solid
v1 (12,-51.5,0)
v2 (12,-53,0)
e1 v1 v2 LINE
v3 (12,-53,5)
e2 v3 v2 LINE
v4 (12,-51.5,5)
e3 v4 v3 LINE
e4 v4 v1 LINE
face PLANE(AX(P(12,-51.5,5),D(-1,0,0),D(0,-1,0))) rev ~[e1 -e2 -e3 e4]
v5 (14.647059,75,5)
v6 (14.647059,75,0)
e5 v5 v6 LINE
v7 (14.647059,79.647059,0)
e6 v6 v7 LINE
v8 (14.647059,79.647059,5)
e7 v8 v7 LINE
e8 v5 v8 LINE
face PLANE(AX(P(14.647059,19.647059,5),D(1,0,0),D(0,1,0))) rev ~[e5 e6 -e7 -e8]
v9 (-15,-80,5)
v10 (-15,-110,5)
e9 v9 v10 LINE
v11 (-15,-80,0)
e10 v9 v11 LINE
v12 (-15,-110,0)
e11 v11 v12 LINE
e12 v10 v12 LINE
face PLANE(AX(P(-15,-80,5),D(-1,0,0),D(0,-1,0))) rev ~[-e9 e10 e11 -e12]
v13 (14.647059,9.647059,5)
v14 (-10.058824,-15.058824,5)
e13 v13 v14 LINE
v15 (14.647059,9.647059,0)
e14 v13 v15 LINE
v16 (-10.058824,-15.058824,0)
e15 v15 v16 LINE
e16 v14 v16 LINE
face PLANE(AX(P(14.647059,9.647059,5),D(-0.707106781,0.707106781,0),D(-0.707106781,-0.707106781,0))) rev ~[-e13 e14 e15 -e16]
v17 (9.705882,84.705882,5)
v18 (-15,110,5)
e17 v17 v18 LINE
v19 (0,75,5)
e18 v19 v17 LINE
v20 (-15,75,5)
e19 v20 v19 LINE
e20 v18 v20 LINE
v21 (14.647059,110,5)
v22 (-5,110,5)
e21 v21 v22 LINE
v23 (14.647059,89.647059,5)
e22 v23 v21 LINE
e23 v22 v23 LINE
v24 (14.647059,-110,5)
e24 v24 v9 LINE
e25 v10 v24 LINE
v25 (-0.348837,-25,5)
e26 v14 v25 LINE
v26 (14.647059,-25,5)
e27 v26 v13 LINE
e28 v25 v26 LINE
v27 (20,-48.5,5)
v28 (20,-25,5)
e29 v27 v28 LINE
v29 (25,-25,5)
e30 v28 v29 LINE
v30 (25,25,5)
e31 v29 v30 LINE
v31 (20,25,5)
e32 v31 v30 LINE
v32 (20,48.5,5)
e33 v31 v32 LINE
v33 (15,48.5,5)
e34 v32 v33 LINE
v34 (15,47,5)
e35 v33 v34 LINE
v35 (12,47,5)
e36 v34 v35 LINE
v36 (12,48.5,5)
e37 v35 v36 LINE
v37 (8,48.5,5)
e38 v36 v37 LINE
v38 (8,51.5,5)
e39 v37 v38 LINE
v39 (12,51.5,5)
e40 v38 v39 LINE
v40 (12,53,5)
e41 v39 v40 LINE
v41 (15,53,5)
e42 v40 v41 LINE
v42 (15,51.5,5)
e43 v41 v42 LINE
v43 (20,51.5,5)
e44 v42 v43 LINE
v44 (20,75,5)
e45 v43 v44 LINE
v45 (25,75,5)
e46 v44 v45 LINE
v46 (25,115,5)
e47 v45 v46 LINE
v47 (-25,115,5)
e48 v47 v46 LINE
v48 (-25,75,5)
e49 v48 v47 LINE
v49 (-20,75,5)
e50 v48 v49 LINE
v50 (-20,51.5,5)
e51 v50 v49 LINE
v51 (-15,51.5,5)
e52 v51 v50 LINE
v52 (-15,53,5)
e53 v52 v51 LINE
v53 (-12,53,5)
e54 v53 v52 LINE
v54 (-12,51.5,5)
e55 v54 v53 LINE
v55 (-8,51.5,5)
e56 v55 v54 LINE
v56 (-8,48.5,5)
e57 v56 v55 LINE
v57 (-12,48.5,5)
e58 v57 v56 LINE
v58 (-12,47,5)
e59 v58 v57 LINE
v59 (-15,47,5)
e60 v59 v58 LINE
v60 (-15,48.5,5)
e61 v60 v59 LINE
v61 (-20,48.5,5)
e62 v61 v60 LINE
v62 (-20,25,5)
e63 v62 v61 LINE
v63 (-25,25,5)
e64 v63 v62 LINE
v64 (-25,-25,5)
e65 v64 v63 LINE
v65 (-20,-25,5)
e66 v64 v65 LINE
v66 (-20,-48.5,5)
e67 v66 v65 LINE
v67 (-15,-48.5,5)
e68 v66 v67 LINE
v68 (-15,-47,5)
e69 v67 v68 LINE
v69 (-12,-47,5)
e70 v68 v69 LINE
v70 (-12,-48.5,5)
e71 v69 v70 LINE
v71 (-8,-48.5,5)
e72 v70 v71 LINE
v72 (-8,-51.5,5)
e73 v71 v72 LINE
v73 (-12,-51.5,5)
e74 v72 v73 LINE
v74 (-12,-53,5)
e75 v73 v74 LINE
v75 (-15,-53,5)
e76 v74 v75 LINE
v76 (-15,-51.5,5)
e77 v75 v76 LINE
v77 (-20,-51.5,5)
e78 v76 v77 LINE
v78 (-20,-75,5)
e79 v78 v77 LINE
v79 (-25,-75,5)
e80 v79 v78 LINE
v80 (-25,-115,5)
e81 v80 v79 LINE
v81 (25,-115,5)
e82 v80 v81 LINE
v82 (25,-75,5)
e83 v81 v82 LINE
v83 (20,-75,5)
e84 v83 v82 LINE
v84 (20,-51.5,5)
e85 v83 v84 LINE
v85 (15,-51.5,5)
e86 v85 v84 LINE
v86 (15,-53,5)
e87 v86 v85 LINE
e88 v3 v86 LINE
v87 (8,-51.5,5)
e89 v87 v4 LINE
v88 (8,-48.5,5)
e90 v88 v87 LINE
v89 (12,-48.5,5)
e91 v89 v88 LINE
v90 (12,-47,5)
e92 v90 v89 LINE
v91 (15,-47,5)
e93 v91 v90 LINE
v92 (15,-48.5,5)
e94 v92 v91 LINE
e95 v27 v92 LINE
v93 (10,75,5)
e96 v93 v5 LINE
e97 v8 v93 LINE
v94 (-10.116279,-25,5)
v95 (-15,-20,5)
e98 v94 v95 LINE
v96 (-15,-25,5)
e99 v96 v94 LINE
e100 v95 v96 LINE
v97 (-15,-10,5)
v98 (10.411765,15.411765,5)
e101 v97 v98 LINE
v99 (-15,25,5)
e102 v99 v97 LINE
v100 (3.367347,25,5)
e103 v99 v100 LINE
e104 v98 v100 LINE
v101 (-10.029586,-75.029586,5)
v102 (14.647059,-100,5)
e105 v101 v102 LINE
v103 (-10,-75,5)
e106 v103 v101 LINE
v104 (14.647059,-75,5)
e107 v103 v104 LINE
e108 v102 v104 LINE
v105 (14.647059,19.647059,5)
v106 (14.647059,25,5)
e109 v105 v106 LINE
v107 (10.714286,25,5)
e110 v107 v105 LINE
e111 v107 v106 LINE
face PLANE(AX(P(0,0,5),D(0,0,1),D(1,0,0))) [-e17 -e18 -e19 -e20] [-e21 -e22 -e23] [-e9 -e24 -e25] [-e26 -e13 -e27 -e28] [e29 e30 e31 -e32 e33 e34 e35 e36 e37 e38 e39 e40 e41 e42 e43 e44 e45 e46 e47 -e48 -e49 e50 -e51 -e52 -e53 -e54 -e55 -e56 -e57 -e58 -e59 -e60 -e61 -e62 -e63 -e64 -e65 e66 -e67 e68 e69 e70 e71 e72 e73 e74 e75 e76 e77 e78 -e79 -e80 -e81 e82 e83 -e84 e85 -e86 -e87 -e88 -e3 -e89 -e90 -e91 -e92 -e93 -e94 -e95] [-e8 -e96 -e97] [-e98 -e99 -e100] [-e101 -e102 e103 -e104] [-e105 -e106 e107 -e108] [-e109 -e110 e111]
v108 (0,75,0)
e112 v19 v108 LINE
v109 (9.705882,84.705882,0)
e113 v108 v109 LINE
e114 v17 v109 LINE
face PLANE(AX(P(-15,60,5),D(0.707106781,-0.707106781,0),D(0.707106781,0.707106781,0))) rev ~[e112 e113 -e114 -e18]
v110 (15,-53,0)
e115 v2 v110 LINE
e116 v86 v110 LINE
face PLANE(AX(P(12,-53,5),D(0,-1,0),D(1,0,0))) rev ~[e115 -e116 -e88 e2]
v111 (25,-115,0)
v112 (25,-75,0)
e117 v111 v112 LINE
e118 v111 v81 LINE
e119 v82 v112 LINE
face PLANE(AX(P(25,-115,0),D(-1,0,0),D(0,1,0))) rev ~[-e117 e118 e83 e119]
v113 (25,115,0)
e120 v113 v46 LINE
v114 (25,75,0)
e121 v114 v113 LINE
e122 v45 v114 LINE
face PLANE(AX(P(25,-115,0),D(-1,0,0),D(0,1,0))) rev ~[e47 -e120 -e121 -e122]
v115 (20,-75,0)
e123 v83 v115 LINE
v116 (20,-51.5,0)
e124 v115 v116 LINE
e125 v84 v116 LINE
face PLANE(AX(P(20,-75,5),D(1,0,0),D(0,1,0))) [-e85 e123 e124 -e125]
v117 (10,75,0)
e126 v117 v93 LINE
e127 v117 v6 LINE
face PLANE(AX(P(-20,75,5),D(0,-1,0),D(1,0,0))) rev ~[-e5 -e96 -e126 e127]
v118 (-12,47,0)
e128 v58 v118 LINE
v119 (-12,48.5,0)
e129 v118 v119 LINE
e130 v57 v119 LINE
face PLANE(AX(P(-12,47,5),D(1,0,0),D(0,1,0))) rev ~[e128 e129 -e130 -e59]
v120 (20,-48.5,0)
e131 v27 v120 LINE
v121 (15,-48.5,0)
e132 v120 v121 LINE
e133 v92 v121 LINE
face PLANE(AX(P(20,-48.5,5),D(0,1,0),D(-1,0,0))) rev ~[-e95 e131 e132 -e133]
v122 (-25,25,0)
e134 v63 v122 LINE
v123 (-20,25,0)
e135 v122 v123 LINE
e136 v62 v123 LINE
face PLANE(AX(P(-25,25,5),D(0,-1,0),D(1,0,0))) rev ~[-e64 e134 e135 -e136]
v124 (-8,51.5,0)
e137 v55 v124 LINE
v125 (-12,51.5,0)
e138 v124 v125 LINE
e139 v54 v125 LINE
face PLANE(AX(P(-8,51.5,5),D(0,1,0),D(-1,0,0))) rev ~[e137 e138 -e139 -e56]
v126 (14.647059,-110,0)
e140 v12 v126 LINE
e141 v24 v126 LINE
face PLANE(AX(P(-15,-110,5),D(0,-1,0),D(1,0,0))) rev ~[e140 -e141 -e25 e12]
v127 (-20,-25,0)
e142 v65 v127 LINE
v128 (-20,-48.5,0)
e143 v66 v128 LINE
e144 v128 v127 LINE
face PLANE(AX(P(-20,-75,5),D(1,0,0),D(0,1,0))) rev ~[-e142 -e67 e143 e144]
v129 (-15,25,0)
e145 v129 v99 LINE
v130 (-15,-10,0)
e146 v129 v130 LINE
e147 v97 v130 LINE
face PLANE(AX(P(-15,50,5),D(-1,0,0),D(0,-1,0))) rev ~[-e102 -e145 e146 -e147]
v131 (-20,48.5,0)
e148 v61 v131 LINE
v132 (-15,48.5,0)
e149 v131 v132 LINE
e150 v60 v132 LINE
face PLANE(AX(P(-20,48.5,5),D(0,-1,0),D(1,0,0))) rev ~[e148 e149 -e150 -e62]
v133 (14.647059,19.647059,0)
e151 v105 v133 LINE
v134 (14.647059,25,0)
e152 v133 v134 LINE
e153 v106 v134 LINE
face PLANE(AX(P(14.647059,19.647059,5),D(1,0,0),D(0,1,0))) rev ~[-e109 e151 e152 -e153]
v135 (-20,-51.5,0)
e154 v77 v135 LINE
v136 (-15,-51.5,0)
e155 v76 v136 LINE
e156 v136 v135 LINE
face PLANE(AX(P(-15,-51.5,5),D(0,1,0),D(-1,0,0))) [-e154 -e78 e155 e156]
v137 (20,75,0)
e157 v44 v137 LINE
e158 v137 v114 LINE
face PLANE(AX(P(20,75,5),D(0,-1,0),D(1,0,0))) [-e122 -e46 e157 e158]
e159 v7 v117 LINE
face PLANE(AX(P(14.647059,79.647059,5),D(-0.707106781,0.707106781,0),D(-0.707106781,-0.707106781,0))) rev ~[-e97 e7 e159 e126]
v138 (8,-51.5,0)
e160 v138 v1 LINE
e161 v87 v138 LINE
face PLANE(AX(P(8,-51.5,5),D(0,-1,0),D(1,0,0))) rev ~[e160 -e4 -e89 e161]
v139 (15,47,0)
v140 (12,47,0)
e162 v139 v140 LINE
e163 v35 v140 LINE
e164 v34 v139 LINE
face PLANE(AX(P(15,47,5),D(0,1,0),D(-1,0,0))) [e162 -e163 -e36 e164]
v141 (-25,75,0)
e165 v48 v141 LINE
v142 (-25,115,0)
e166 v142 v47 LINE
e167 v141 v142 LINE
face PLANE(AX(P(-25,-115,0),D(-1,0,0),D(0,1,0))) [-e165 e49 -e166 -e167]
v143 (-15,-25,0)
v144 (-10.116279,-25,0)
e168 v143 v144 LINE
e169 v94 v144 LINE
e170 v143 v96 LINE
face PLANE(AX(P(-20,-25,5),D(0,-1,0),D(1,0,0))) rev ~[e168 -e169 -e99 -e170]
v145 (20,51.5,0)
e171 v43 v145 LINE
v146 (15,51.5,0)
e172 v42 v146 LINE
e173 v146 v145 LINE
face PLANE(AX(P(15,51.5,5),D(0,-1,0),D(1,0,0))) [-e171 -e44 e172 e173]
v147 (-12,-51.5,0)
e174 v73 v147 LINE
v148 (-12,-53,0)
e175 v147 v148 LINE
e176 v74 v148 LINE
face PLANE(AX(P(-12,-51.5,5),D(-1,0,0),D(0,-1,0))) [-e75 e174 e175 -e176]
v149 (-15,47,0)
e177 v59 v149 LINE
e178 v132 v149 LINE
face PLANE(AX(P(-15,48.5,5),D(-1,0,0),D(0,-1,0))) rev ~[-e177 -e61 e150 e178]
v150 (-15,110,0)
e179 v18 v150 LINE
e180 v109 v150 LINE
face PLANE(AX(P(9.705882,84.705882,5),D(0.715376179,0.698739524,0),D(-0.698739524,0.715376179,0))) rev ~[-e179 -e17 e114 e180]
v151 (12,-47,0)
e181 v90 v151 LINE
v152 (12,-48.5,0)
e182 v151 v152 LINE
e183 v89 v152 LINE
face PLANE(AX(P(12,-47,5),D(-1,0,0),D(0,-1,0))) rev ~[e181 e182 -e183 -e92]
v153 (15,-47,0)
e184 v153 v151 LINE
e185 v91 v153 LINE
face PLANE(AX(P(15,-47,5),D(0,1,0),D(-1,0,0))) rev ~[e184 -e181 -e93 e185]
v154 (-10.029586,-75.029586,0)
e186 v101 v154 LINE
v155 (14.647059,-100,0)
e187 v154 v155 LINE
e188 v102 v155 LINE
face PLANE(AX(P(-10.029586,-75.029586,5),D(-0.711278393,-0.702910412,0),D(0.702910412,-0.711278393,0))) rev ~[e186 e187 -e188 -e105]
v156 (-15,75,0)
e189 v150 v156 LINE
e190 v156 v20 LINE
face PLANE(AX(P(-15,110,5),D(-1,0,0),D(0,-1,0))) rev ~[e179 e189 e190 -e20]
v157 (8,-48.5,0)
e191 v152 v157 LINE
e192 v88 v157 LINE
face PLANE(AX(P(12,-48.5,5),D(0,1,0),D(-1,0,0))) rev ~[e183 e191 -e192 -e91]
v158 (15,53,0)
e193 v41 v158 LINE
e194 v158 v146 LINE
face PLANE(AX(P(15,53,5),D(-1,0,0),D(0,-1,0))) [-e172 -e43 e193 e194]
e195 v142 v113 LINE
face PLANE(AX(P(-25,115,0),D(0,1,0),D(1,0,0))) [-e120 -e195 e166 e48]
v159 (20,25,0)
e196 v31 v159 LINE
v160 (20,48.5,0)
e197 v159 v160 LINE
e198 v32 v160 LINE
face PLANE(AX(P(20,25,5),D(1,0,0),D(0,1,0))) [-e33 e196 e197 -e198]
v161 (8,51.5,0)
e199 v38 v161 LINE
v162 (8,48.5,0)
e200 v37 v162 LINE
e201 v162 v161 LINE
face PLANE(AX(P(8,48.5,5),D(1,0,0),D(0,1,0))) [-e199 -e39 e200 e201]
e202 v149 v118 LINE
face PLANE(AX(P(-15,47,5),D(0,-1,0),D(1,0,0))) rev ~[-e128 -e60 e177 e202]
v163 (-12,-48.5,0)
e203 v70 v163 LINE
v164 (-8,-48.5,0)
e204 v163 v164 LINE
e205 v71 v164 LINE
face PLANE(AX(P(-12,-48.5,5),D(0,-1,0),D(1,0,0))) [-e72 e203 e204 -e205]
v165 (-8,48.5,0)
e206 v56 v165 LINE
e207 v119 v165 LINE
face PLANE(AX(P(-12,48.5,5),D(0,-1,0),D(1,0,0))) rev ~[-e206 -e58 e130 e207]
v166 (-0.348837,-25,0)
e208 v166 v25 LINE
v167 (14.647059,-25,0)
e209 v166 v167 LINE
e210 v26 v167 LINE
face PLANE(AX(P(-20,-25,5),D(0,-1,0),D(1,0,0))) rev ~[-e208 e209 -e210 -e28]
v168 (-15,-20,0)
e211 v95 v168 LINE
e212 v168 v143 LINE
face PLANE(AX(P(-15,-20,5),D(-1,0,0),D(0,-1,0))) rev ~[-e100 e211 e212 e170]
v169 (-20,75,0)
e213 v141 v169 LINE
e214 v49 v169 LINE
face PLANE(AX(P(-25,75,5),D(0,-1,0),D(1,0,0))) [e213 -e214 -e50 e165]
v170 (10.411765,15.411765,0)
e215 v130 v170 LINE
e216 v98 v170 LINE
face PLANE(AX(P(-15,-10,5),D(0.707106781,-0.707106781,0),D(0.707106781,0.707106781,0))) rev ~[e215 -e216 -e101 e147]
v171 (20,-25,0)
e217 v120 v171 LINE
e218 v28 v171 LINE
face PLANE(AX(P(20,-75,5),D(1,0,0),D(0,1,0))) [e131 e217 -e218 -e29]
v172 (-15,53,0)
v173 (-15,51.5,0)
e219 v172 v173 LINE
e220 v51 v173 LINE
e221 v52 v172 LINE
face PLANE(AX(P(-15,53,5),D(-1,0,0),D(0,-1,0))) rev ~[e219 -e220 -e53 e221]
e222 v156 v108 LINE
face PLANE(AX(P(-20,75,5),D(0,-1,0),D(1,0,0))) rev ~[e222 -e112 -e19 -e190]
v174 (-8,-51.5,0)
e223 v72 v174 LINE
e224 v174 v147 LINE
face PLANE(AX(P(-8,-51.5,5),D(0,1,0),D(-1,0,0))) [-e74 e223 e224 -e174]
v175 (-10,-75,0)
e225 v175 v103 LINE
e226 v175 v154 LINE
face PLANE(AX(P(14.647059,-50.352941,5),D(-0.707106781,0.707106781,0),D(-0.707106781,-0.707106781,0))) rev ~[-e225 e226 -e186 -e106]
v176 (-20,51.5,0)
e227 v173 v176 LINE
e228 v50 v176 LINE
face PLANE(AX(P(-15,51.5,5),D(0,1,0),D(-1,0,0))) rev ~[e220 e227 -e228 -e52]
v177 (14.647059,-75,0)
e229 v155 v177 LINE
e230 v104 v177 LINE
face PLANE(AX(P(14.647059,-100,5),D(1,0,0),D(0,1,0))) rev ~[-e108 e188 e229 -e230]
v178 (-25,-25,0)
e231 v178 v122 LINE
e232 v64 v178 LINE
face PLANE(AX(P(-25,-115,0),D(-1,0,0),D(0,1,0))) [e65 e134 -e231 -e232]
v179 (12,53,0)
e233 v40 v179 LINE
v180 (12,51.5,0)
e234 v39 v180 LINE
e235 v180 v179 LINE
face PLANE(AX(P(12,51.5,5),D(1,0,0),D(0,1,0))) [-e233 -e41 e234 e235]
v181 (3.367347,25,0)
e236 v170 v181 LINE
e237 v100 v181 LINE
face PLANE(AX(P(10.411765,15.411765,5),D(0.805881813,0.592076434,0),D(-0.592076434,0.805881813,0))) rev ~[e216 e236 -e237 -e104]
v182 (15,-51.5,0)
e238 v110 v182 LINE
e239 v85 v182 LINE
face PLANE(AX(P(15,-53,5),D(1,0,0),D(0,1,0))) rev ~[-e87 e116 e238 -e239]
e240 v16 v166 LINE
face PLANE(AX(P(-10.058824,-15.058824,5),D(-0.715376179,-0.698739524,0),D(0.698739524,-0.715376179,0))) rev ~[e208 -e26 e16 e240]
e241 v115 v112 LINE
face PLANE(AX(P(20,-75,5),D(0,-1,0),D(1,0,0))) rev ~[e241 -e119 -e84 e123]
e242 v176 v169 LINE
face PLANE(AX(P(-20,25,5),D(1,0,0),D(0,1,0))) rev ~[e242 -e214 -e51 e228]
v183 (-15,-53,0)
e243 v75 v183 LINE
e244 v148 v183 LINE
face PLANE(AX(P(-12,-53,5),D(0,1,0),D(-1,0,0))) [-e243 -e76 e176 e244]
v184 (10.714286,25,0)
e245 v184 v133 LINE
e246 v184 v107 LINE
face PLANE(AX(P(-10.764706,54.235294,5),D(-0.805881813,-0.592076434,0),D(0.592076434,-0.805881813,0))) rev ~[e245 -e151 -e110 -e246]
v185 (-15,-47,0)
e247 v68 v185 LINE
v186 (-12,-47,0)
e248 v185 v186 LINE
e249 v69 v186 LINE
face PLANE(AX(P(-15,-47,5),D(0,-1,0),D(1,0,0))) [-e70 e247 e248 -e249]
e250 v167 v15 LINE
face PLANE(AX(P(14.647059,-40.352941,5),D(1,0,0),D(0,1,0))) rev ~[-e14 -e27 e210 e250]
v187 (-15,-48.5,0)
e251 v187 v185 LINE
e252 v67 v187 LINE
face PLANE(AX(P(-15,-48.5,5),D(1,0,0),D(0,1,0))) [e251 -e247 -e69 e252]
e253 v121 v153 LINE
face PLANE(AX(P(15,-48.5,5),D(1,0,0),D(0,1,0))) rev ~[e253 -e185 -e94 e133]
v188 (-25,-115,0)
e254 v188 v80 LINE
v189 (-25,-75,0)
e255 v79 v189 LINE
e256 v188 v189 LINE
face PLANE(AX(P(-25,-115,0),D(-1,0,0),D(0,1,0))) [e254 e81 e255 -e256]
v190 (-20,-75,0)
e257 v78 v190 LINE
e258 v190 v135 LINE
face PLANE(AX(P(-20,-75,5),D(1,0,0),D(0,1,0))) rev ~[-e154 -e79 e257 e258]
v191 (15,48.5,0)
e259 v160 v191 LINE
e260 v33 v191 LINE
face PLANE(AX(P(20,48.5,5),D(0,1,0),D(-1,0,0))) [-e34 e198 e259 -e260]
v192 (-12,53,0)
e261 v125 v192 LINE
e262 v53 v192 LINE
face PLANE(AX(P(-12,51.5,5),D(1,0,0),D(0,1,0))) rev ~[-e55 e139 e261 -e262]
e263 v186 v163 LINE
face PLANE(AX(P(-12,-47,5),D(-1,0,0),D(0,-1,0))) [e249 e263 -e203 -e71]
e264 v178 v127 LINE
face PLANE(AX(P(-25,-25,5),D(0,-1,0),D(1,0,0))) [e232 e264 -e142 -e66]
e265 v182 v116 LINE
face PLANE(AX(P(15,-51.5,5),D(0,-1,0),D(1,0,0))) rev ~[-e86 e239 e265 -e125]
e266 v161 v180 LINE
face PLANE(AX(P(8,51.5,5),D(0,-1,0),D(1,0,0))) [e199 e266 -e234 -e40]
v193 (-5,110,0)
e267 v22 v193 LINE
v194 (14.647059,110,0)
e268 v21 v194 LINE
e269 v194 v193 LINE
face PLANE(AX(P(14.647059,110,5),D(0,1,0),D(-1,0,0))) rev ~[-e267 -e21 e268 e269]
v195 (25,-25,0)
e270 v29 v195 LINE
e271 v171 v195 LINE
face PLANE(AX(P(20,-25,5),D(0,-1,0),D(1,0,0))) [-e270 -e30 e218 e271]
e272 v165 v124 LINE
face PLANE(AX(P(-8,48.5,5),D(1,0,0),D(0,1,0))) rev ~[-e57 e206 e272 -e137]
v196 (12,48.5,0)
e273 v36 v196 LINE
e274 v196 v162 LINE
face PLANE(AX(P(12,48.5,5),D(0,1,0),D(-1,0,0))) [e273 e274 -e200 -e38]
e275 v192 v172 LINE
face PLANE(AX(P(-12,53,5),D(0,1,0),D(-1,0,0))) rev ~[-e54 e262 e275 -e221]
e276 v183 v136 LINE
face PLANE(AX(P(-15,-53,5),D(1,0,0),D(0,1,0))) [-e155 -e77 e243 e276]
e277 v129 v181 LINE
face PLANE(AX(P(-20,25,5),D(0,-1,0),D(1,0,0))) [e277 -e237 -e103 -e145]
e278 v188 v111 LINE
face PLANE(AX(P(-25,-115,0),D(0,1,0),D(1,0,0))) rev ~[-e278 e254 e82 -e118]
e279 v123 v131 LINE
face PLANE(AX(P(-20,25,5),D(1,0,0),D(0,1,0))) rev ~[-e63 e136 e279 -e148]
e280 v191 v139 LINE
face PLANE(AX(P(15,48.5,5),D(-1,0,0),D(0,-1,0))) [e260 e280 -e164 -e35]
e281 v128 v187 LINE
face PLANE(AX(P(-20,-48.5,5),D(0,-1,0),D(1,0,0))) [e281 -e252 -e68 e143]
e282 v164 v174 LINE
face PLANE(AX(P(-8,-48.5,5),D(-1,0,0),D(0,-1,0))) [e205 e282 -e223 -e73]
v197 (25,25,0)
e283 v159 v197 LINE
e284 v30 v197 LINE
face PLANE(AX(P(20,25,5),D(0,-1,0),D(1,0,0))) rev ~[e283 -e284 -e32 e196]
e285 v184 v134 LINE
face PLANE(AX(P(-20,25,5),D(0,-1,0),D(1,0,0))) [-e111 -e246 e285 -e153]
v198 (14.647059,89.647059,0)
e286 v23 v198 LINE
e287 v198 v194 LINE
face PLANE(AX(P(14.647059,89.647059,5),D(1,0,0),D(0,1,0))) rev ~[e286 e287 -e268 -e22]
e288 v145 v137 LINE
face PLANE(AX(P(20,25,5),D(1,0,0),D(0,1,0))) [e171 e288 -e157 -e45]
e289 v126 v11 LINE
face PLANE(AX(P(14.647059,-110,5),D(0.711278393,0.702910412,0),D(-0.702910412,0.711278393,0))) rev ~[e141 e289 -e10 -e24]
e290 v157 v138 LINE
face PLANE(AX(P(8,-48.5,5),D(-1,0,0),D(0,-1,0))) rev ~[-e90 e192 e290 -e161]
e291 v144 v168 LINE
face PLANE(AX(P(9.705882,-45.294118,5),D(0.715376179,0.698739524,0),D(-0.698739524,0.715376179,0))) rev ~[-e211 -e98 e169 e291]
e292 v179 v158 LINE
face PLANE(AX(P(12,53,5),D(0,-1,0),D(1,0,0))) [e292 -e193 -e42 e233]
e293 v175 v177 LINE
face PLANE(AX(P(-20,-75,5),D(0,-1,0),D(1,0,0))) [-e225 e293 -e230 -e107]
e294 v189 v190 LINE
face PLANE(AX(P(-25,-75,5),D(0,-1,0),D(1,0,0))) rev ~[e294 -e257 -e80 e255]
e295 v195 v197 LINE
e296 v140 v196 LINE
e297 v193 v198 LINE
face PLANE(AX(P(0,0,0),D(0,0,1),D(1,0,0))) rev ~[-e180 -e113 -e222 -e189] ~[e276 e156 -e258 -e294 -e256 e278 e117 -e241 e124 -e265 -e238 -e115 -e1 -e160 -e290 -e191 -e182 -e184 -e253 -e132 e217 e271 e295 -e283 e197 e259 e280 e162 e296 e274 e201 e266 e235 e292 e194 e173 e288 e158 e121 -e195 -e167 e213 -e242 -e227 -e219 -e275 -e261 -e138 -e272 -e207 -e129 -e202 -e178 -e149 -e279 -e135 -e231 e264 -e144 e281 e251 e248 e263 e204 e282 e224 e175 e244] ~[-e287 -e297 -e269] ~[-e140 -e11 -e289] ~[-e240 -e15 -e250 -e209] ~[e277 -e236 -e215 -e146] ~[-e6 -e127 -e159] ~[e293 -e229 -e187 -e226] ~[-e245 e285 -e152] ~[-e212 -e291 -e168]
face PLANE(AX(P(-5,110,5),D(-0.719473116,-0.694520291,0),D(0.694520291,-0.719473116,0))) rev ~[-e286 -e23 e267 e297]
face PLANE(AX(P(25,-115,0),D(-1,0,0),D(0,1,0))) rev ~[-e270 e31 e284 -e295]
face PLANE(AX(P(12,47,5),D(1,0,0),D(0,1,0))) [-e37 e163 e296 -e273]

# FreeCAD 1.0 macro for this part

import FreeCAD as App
import Part
import Sketcher
Q = App.Units.Quantity

doc = App.newDocument("Part")
body = doc.addObject("PartDesign::Body", "Body")

# Sketch on XY plane
sketch1 = doc.addObject("Sketcher::SketchObject", "Sketch")
body.addObject(sketch1)
sketch1.AttachmentSupport = (doc.XY_Plane, [""])
sketch1.MapMode = "FlatFace"
sketch1.addGeometry(Part.LineSegment(App.Vector(-25, 115, 0), App.Vector(-25, -115, 0)), False)
sketch1.addGeometry(Part.LineSegment(App.Vector(-25, -115, 0), App.Vector(25, -115, 0)), False)
sketch1.addGeometry(Part.LineSegment(App.Vector(25, -115, 0), App.Vector(25, 115, 0)), False)
sketch1.addGeometry(Part.LineSegment(App.Vector(25, 115, 0), App.Vector(-25, 115, 0)), False)
sketch1.addConstraint(Sketcher.Constraint("Coincident", 0, 2, 1, 1))
sketch1.addConstraint(Sketcher.Constraint("Coincident", 1, 2, 2, 1))
sketch1.addConstraint(Sketcher.Constraint("Coincident", 2, 2, 3, 1))
sketch1.addConstraint(Sketcher.Constraint("Coincident", 3, 2, 0, 1))
sketch1.addConstraint(Sketcher.Constraint("Vertical", 0))
sketch1.addConstraint(Sketcher.Constraint("Horizontal", 1))
sketch1.addConstraint(Sketcher.Constraint("Vertical", 2))
sketch1.addConstraint(Sketcher.Constraint("Horizontal", 3))
sketch1.addConstraint(Sketcher.Constraint("Symmetric", 0, 2, 2, 2, -1, 1))
sketch1.addConstraint(Sketcher.Constraint("DistanceX", 1, 1, 1, 2, Q("50 mm")))
sketch1.addConstraint(Sketcher.Constraint("DistanceY", 0, 2, 0, 1, Q("230 mm")))
pad1 = doc.addObject("PartDesign::Pad", "Pad")
body.addObject(pad1)
pad1.Profile = sketch1
pad1.Length = 5

# Sketch on XY plane
sketch2 = doc.addObject("Sketcher::SketchObject", "Sketch001")
body.addObject(sketch2)
sketch2.AttachmentSupport = (doc.XY_Plane, [""])
sketch2.MapMode = "FlatFace"
sketch2.AttachmentOffset = App.Placement(App.Vector(0, 0, 5), App.Rotation())
sketch2.addGeometry(Part.LineSegment(App.Vector(-25, 75, 0), App.Vector(-25, 25, 0)), False)
sketch2.addGeometry(Part.LineSegment(App.Vector(-25, 25, 0), App.Vector(-20, 25, 0)), False)
sketch2.addGeometry(Part.LineSegment(App.Vector(-20, 25, 0), App.Vector(-20, 75, 0)), False)
sketch2.addGeometry(Part.LineSegment(App.Vector(-20, 75, 0), App.Vector(-25, 75, 0)), False)
sketch2.addGeometry(Part.LineSegment(App.Vector(-25, -25, 0), App.Vector(-25, -75, 0)), False)
sketch2.addGeometry(Part.LineSegment(App.Vector(-25, -75, 0), App.Vector(-20, -75, 0)), False)
sketch2.addGeometry(Part.LineSegment(App.Vector(-20, -75, 0), App.Vector(-20, -25, 0)), False)
sketch2.addGeometry(Part.LineSegment(App.Vector(-20, -25, 0), App.Vector(-25, -25, 0)), False)
sketch2.addGeometry(Part.LineSegment(App.Vector(20, -25, 0), App.Vector(20, -75, 0)), False)
sketch2.addGeometry(Part.LineSegment(App.Vector(20, -75, 0), App.Vector(25, -75, 0)), False)
sketch2.addGeometry(Part.LineSegment(App.Vector(25, -75, 0), App.Vector(25, -25, 0)), False)
sketch2.addGeometry(Part.LineSegment(App.Vector(25, -25, 0), App.Vector(20, -25, 0)), False)
sketch2.addGeometry(Part.LineSegment(App.Vector(20, 75, 0), App.Vector(20, 25, 0)), False)
sketch2.addGeometry(Part.LineSegment(App.Vector(20, 25, 0), App.Vector(25, 25, 0)), False)
sketch2.addGeometry(Part.LineSegment(App.Vector(25, 25, 0), App.Vector(25, 75, 0)), False)
sketch2.addGeometry(Part.LineSegment(App.Vector(25, 75, 0), App.Vector(20, 75, 0)), False)
sketch2.addConstraint(Sketcher.Constraint("Coincident", 0, 2, 1, 1))
sketch2.addConstraint(Sketcher.Constraint("Coincident", 1, 2, 2, 1))
sketch2.addConstraint(Sketcher.Constraint("Coincident", 2, 2, 3, 1))
sketch2.addConstraint(Sketcher.Constraint("Coincident", 3, 2, 0, 1))
sketch2.addConstraint(Sketcher.Constraint("Coincident", 4, 2, 5, 1))
sketch2.addConstraint(Sketcher.Constraint("Coincident", 5, 2, 6, 1))
sketch2.addConstraint(Sketcher.Constraint("Coincident", 6, 2, 7, 1))
sketch2.addConstraint(Sketcher.Constraint("Coincident", 7, 2, 4, 1))
sketch2.addConstraint(Sketcher.Constraint("Coincident", 8, 2, 9, 1))
sketch2.addConstraint(Sketcher.Constraint("Coincident", 9, 2, 10, 1))
sketch2.addConstraint(Sketcher.Constraint("Coincident", 10, 2, 11, 1))
sketch2.addConstraint(Sketcher.Constraint("Coincident", 11, 2, 8, 1))
sketch2.addConstraint(Sketcher.Constraint("Coincident", 12, 2, 13, 1))
sketch2.addConstraint(Sketcher.Constraint("Coincident", 13, 2, 14, 1))
sketch2.addConstraint(Sketcher.Constraint("Coincident", 14, 2, 15, 1))
sketch2.addConstraint(Sketcher.Constraint("Coincident", 15, 2, 12, 1))
sketch2.addConstraint(Sketcher.Constraint("Vertical", 0))
sketch2.addConstraint(Sketcher.Constraint("Horizontal", 1))
sketch2.addConstraint(Sketcher.Constraint("Vertical", 2))
sketch2.addConstraint(Sketcher.Constraint("Horizontal", 3))
sketch2.addConstraint(Sketcher.Constraint("Vertical", 4))
sketch2.addConstraint(Sketcher.Constraint("Horizontal", 5))
sketch2.addConstraint(Sketcher.Constraint("Vertical", 6))
sketch2.addConstraint(Sketcher.Constraint("Horizontal", 7))
sketch2.addConstraint(Sketcher.Constraint("Vertical", 8))
sketch2.addConstraint(Sketcher.Constraint("Horizontal", 9))
sketch2.addConstraint(Sketcher.Constraint("Vertical", 10))
sketch2.addConstraint(Sketcher.Constraint("Horizontal", 11))
sketch2.addConstraint(Sketcher.Constraint("Vertical", 12))
sketch2.addConstraint(Sketcher.Constraint("Horizontal", 13))
sketch2.addConstraint(Sketcher.Constraint("Vertical", 14))
sketch2.addConstraint(Sketcher.Constraint("Horizontal", 15))
sketch2.addConstraint(Sketcher.Constraint("Symmetric", 2, 2, 8, 2, -1, 1))
sketch2.addConstraint(Sketcher.Constraint("Symmetric", 0, 2, 10, 2, -1, 1))
sketch2.addConstraint(Sketcher.Constraint("Symmetric", 6, 2, 12, 2, -1, 1))
sketch2.addConstraint(Sketcher.Constraint("Symmetric", 4, 2, 14, 2, -1, 1))
sketch2.addConstraint(Sketcher.Constraint("Symmetric", 5, 2, 8, 2, -2))
sketch2.addConstraint(Sketcher.Constraint("Symmetric", 7, 2, 10, 2, -2))
sketch2.addConstraint(Sketcher.Constraint("DistanceX", 1, 1, 1, 2, Q("5 mm")))
sketch2.addConstraint(Sketcher.Constraint("DistanceY", 0, 2, 0, 1, Q("50 mm")))
sketch2.addConstraint(Sketcher.Constraint("DistanceX", 0, 2, -1, 1, Q("25 mm")))
sketch2.addConstraint(Sketcher.Constraint("DistanceY", -1, 1, 0, 2, Q("25 mm")))
pocket1 = doc.addObject("PartDesign::Pocket", "Pocket")
body.addObject(pocket1)
pocket1.Profile = sketch2
pocket1.Length = 7

# Sketch on YZ plane
sketch3 = doc.addObject("Sketcher::SketchObject", "Sketch002")
body.addObject(sketch3)
sketch3.AttachmentSupport = (doc.YZ_Plane, [""])
sketch3.MapMode = "FlatFace"
sketch3.AttachmentOffset = App.Placement(App.Vector(0, 0, -20), App.Rotation())
sketch3.addGeometry(Part.Circle(App.Vector(50, 2.5, 0), App.Vector(0, 0, 1), 1.5), False)
sketch3.addGeometry(Part.Circle(App.Vector(-50, 2.5, 0), App.Vector(0, 0, 1), 1.5), False)
sketch3.addConstraint(Sketcher.Constraint("Equal", 0, 1))
sketch3.addConstraint(Sketcher.Constraint("Symmetric", 0, 3, 1, 3, -2))
sketch3.addConstraint(Sketcher.Constraint("Diameter", 0, Q("3 mm")))
sketch3.addConstraint(Sketcher.Constraint("DistanceX", -1, 1, 0, 3, Q("50 mm")))
sketch3.addConstraint(Sketcher.Constraint("DistanceY", -1, 1, 0, 3, Q("2.5 mm")))
pocket2 = doc.addObject("PartDesign::Pocket", "Pocket001")
body.addObject(pocket2)
pocket2.Profile = sketch3
pocket2.Length = 7
pocket2.Reversed = True

# Sketch on YZ plane
sketch4 = doc.addObject("Sketcher::SketchObject", "Sketch003")
body.addObject(sketch4)
sketch4.AttachmentSupport = (doc.YZ_Plane, [""])
sketch4.MapMode = "FlatFace"
sketch4.AttachmentOffset = App.Placement(App.Vector(0, 0, 13), App.Rotation())
sketch4.addGeometry(Part.Circle(App.Vector(-50, 2.5, 0), App.Vector(0, 0, 1), 1.5), False)
sketch4.addGeometry(Part.Circle(App.Vector(50, 2.5, 0), App.Vector(0, 0, 1), 1.5), False)
sketch4.addConstraint(Sketcher.Constraint("Equal", 0, 1))
sketch4.addConstraint(Sketcher.Constraint("Symmetric", 0, 3, 1, 3, -2))
sketch4.addConstraint(Sketcher.Constraint("Diameter", 0, Q("3 mm")))
sketch4.addConstraint(Sketcher.Constraint("DistanceX", 0, 3, -1, 1, Q("50 mm")))
sketch4.addConstraint(Sketcher.Constraint("DistanceY", -1, 1, 0, 3, Q("2.5 mm")))
pocket3 = doc.addObject("PartDesign::Pocket", "Pocket002")
body.addObject(pocket3)
pocket3.Profile = sketch4
pocket3.Length = 7
pocket3.Reversed = True

# Sketch on XY plane
sketch5 = doc.addObject("Sketcher::SketchObject", "Sketch004")
body.addObject(sketch5)
sketch5.AttachmentSupport = (doc.XY_Plane, [""])
sketch5.MapMode = "FlatFace"
sketch5.AttachmentOffset = App.Placement(App.Vector(0, 0, 5), App.Rotation())
sketch5.addGeometry(Part.LineSegment(App.Vector(10, 85, 0), App.Vector(-15, 110, 0)), False)
sketch5.addGeometry(Part.LineSegment(App.Vector(-15, 110, 0), App.Vector(-15, 60, 0)), False)
sketch5.addGeometry(Part.LineSegment(App.Vector(-15, 60, 0), App.Vector(10, 85, 0)), False)
sketch5.addGeometry(Part.LineSegment(App.Vector(15, 20, 0), App.Vector(15, 80, 0)), False)
sketch5.addGeometry(Part.LineSegment(App.Vector(15, 80, 0), App.Vector(-11, 54, 0)), False)
sketch5.addGeometry(Part.LineSegment(App.Vector(-11, 54, 0), App.Vector(15, 20, 0)), False)
sketch5.addGeometry(Part.LineSegment(App.Vector(10, 15, 0), App.Vector(-15, 50, 0)), False)
sketch5.addGeometry(Part.LineSegment(App.Vector(-15, 50, 0), App.Vector(-15, -10, 0)), False)
sketch5.addGeometry(Part.LineSegment(App.Vector(-15, -10, 0), App.Vector(10, 15, 0)), False)
sketch5.addGeometry(Part.LineSegment(App.Vector(15, 110, 0), App.Vector(-5, 110, 0)), False)
sketch5.addGeometry(Part.LineSegment(App.Vector(-5, 110, 0), App.Vector(15, 90, 0)), False)
sketch5.addGeometry(Part.LineSegment(App.Vector(15, 90, 0), App.Vector(15, 110, 0)), False)
sketch5.addGeometry(Part.LineSegment(App.Vector(15, -40, 0), App.Vector(15, 10, 0)), False)
sketch5.addGeometry(Part.LineSegment(App.Vector(15, 10, 0), App.Vector(-10, -15, 0)), False)
sketch5.addGeometry(Part.LineSegment(App.Vector(-10, -15, 0), App.Vector(15, -40, 0)), False)
sketch5.addGeometry(Part.LineSegment(App.Vector(10, -45, 0), App.Vector(-15, -20, 0)), False)
sketch5.addGeometry(Part.LineSegment(App.Vector(-15, -20, 0), App.Vector(-15, -70, 0)), False)
sketch5.addGeometry(Part.LineSegment(App.Vector(-15, -70, 0), App.Vector(10, -45, 0)), False)
sketch5.addGeometry(Part.LineSegment(App.Vector(15, -100, 0), App.Vector(15, -50, 0)), False)
sketch5.addGeometry(Part.LineSegment(App.Vector(15, -50, 0), App.Vector(-10, -75, 0)), False)
sketch5.addGeometry(Part.LineSegment(App.Vector(-10, -75, 0), App.Vector(15, -100, 0)), False)
sketch5.addGeometry(Part.LineSegment(App.Vector(15, -110, 0), App.Vector(-15, -80, 0)), False)
sketch5.addGeometry(Part.LineSegment(App.Vector(-15, -80, 0), App.Vector(-15, -110, 0)), False)
sketch5.addGeometry(Part.LineSegment(App.Vector(-15, -110, 0), App.Vector(15, -110, 0)), False)
sketch5.addConstraint(Sketcher.Constraint("Coincident", 0, 2, 1, 1))
sketch5.addConstraint(Sketcher.Constraint("Coincident", 1, 2, 2, 1))
sketch5.addConstraint(Sketcher.Constraint("Coincident", 2, 2, 0, 1))
sketch5.addConstraint(Sketcher.Constraint("Coincident", 3, 2, 4, 1))
sketch5.addConstraint(Sketcher.Constraint("Coincident", 4, 2, 5, 1))
sketch5.addConstraint(Sketcher.Constraint("Coincident", 5, 2, 3, 1))
sketch5.addConstraint(Sketcher.Constraint("Coincident", 6, 2, 7, 1))
sketch5.addConstraint(Sketcher.Constraint("Coincident", 7, 2, 8, 1))
sketch5.addConstraint(Sketcher.Constraint("Coincident", 8, 2, 6, 1))
sketch5.addConstraint(Sketcher.Constraint("Coincident", 9, 2, 10, 1))
sketch5.addConstraint(Sketcher.Constraint("Coincident", 10, 2, 11, 1))
sketch5.addConstraint(Sketcher.Constraint("Coincident", 11, 2, 9, 1))
sketch5.addConstraint(Sketcher.Constraint("Coincident", 12, 2, 13, 1))
sketch5.addConstraint(Sketcher.Constraint("Coincident", 13, 2, 14, 1))
sketch5.addConstraint(Sketcher.Constraint("Coincident", 14, 2, 12, 1))
sketch5.addConstraint(Sketcher.Constraint("Coincident", 15, 2, 16, 1))
sketch5.addConstraint(Sketcher.Constraint("Coincident", 16, 2, 17, 1))
sketch5.addConstraint(Sketcher.Constraint("Coincident", 17, 2, 15, 1))
sketch5.addConstraint(Sketcher.Constraint("Coincident", 18, 2, 19, 1))
sketch5.addConstraint(Sketcher.Constraint("Coincident", 19, 2, 20, 1))
sketch5.addConstraint(Sketcher.Constraint("Coincident", 20, 2, 18, 1))
sketch5.addConstraint(Sketcher.Constraint("Coincident", 21, 2, 22, 1))
sketch5.addConstraint(Sketcher.Constraint("Coincident", 22, 2, 23, 1))
sketch5.addConstraint(Sketcher.Constraint("Coincident", 23, 2, 21, 1))
sketch5.addConstraint(Sketcher.Constraint("Vertical", 1))
sketch5.addConstraint(Sketcher.Constraint("Vertical", 3))
sketch5.addConstraint(Sketcher.Constraint("Vertical", 7))
sketch5.addConstraint(Sketcher.Constraint("Horizontal", 9))
sketch5.addConstraint(Sketcher.Constraint("Vertical", 11))
sketch5.addConstraint(Sketcher.Constraint("Vertical", 12))
sketch5.addConstraint(Sketcher.Constraint("Vertical", 16))
sketch5.addConstraint(Sketcher.Constraint("Vertical", 18))
sketch5.addConstraint(Sketcher.Constraint("Vertical", 22))
sketch5.addConstraint(Sketcher.Constraint("Horizontal", 23))
sketch5.addConstraint(Sketcher.Constraint("Symmetric", 0, 2, 22, 2, -1))
sketch5.addConstraint(Sketcher.Constraint("Symmetric", 11, 2, 23, 2, -1))
sketch5.addConstraint(Sketcher.Constraint("Parallel", 2, 4))
sketch5.addConstraint(Sketcher.Constraint("Parallel", 5, 6))
sketch5.addConstraint(Sketcher.Constraint("Parallel", 4, 8))
sketch5.addConstraint(Sketcher.Constraint("Parallel", 8, 13))
sketch5.addConstraint(Sketcher.Constraint("Parallel", 0, 14))
sketch5.addConstraint(Sketcher.Constraint("Parallel", 14, 15))
sketch5.addConstraint(Sketcher.Constraint("Parallel", 13, 17))
sketch5.addConstraint(Sketcher.Constraint("Parallel", 17, 19))
sketch5.addConstraint(Sketcher.Constraint("Parallel", 20, 21))
sketch5.addConstraint(Sketcher.Constraint("Vertical", 1, 2, 6, 2))
sketch5.addConstraint(Sketcher.Constraint("Vertical", 5, 2, 10, 2))
sketch5.addConstraint(Sketcher.Constraint("Vertical", 11, 2, 12, 2))
sketch5.addConstraint(Sketcher.Constraint("Vertical", 7, 2, 15, 2))
sketch5.addConstraint(Sketcher.Constraint("Vertical", 2, 2, 17, 2))
sketch5.addConstraint(Sketcher.Constraint("Vertical", 14, 2, 18, 2))
sketch5.addConstraint(Sketcher.Constraint("Equal", 3, 7))
sketch5.addConstraint(Sketcher.Constraint("Equal", 1, 12))
sketch5.addConstraint(Sketcher.Constraint("DistanceY", 1, 2, 1, 1, Q("50 mm")))
sketch5.addConstraint(Sketcher.Constraint("DistanceY", 3, 1, 3, 2, Q("60 mm")))
sketch5.addConstraint(Sketcher.Constraint("DistanceY", 22, 2, 22, 1, Q("30 mm")))
sketch5.addConstraint(Sketcher.Constraint("Angle", 2, Q("45 deg")))
sketch5.addConstraint(Sketcher.Constraint("DistanceX", 0, 2, -1, 1, Q("15 mm")))
sketch5.addConstraint(Sketcher.Constraint("DistanceY", -1, 1, 0, 2, Q("110 mm")))
sketch5.addConstraint(Sketcher.Constraint("DistanceY", -1, 1, 6, 2, Q("50 mm")))
sketch5.addConstraint(Sketcher.Constraint("DistanceX", 9, 2, -1, 1, Q("5 mm")))
sketch5.addConstraint(Sketcher.Constraint("DistanceY", 15, 2, -1, 1, Q("20 mm")))
sketch5.addConstraint(Sketcher.Constraint("DistanceY", 20, 2, -1, 1, Q("100 mm")))
sketch5.addConstraint(Sketcher.Constraint("DistanceY", 3, 2, 10, 2, Q("10 mm")))
sketch5.addConstraint(Sketcher.Constraint("DistanceY", 12, 2, 5, 2, Q("10 mm")))
sketch5.addConstraint(Sketcher.Constraint("DistanceY", 18, 2, 14, 2, Q("10 mm")))
sketch5.addConstraint(Sketcher.Constraint("DistanceX", 9, 2, 9, 1, Q("19.647059 mm")))
sketch5.addConstraint(Sketcher.Constraint("DistanceY", 11, 1, 11, 2, Q("20.352941 mm")))
sketch5.addConstraint(Sketcher.Constraint("DistanceX", 4, 2, 2, 2, Q("20.470588 mm")))
sketch5.addConstraint(Sketcher.Constraint("DistanceX", 4, 2, 8, 2, Q("21.176471 mm")))
pocket4 = doc.addObject("PartDesign::Pocket", "Pocket003")
body.addObject(pocket4)
pocket4.Profile = sketch5
pocket4.Length = 7

# Sketch on XY plane
sketch6 = doc.addObject("Sketcher::SketchObject", "Sketch005")
body.addObject(sketch6)
sketch6.AttachmentSupport = (doc.XY_Plane, [""])
sketch6.MapMode = "FlatFace"
sketch6.AttachmentOffset = App.Placement(App.Vector(0, 0, 5), App.Rotation())
sketch6.addGeometry(Part.LineSegment(App.Vector(-20, -25, 0), App.Vector(-20, -75, 0)), False)
sketch6.addGeometry(Part.LineSegment(App.Vector(-20, -75, 0), App.Vector(20, -75, 0)), False)
sketch6.addGeometry(Part.LineSegment(App.Vector(20, -75, 0), App.Vector(20, -25, 0)), False)
sketch6.addGeometry(Part.LineSegment(App.Vector(20, -25, 0), App.Vector(-20, -25, 0)), False)
sketch6.addGeometry(Part.LineSegment(App.Vector(-20, 75, 0), App.Vector(-20, 25, 0)), False)
sketch6.addGeometry(Part.LineSegment(App.Vector(-20, 25, 0), App.Vector(20, 25, 0)), False)
sketch6.addGeometry(Part.LineSegment(App.Vector(20, 25, 0), App.Vector(20, 75, 0)), False)
sketch6.addGeometry(Part.LineSegment(App.Vector(20, 75, 0), App.Vector(-20, 75, 0)), False)
sketch6.addConstraint(Sketcher.Constraint("Coincident", 0, 2, 1, 1))
sketch6.addConstraint(Sketcher.Constraint("Coincident", 1, 2, 2, 1))
sketch6.addConstraint(Sketcher.Constraint("Coincident", 2, 2, 3, 1))
sketch6.addConstraint(Sketcher.Constraint("Coincident", 3, 2, 0, 1))
sketch6.addConstraint(Sketcher.Constraint("Coincident", 4, 2, 5, 1))
sketch6.addConstraint(Sketcher.Constraint("Coincident", 5, 2, 6, 1))
sketch6.addConstraint(Sketcher.Constraint("Coincident", 6, 2, 7, 1))
sketch6.addConstraint(Sketcher.Constraint("Coincident", 7, 2, 4, 1))
sketch6.addConstraint(Sketcher.Constraint("Vertical", 0))
sketch6.addConstraint(Sketcher.Constraint("Horizontal", 1))
sketch6.addConstraint(Sketcher.Constraint("Vertical", 2))
sketch6.addConstraint(Sketcher.Constraint("Horizontal", 3))
sketch6.addConstraint(Sketcher.Constraint("Vertical", 4))
sketch6.addConstraint(Sketcher.Constraint("Horizontal", 5))
sketch6.addConstraint(Sketcher.Constraint("Vertical", 6))
sketch6.addConstraint(Sketcher.Constraint("Horizontal", 7))
sketch6.addConstraint(Sketcher.Constraint("Symmetric", 2, 2, 4, 2, -1, 1))
sketch6.addConstraint(Sketcher.Constraint("Symmetric", 0, 2, 6, 2, -1, 1))
sketch6.addConstraint(Sketcher.Constraint("Vertical", 3, 2, 4, 2))
sketch6.addConstraint(Sketcher.Constraint("DistanceX", 1, 1, 1, 2, Q("40 mm")))
sketch6.addConstraint(Sketcher.Constraint("DistanceY", 0, 2, 0, 1, Q("50 mm")))
sketch6.addConstraint(Sketcher.Constraint("DistanceY", 0, 2, -1, 1, Q("75 mm")))
pad2 = doc.addObject("PartDesign::Pad", "Pad001")
body.addObject(pad2)
pad2.Profile = sketch6
pad2.Length = 5
pad2.Reversed = True

# Sketch on XY plane
sketch7 = doc.addObject("Sketcher::SketchObject", "Sketch006")
body.addObject(sketch7)
sketch7.AttachmentSupport = (doc.XY_Plane, [""])
sketch7.MapMode = "FlatFace"
sketch7.AttachmentOffset = App.Placement(App.Vector(0, 0, 5), App.Rotation())
sketch7.addGeometry(Part.LineSegment(App.Vector(-15, -47, 0), App.Vector(-15, -48.5, 0)), False)
sketch7.addGeometry(Part.LineSegment(App.Vector(-15, -48.5, 0), App.Vector(-20, -48.5, 0)), False)
sketch7.addGeometry(Part.LineSegment(App.Vector(-20, -48.5, 0), App.Vector(-20, -51.5, 0)), False)
sketch7.addGeometry(Part.LineSegment(App.Vector(-20, -51.5, 0), App.Vector(-15, -51.5, 0)), False)
sketch7.addGeometry(Part.LineSegment(App.Vector(-15, -51.5, 0), App.Vector(-15, -53, 0)), False)
sketch7.addGeometry(Part.LineSegment(App.Vector(-15, -53, 0), App.Vector(-12, -53, 0)), False)
sketch7.addGeometry(Part.LineSegment(App.Vector(-12, -53, 0), App.Vector(-12, -51.5, 0)), False)
sketch7.addGeometry(Part.LineSegment(App.Vector(-12, -51.5, 0), App.Vector(-8, -51.5, 0)), False)
sketch7.addGeometry(Part.LineSegment(App.Vector(-8, -51.5, 0), App.Vector(-8, -48.5, 0)), False)
sketch7.addGeometry(Part.LineSegment(App.Vector(-8, -48.5, 0), App.Vector(-12, -48.5, 0)), False)
sketch7.addGeometry(Part.LineSegment(App.Vector(-12, -48.5, 0), App.Vector(-12, -47, 0)), False)
sketch7.addGeometry(Part.LineSegment(App.Vector(-12, -47, 0), App.Vector(-15, -47, 0)), False)
sketch7.addGeometry(Part.LineSegment(App.Vector(-20, 48.5, 0), App.Vector(-15, 48.5, 0)), False)
sketch7.addGeometry(Part.LineSegment(App.Vector(-15, 48.5, 0), App.Vector(-15, 47, 0)), False)
sketch7.addGeometry(Part.LineSegment(App.Vector(-15, 47, 0), App.Vector(-12, 47, 0)), False)
sketch7.addGeometry(Part.LineSegment(App.Vector(-12, 47, 0), App.Vector(-12, 48.5, 0)), False)
sketch7.addGeometry(Part.LineSegment(App.Vector(-12, 48.5, 0), App.Vector(-8, 48.5, 0)), False)
sketch7.addGeometry(Part.LineSegment(App.Vector(-8, 48.5, 0), App.Vector(-8, 51.5, 0)), False)
sketch7.addGeometry(Part.LineSegment(App.Vector(-8, 51.5, 0), App.Vector(-12, 51.5, 0)), False)
sketch7.addGeometry(Part.LineSegment(App.Vector(-12, 51.5, 0), App.Vector(-12, 53, 0)), False)
sketch7.addGeometry(Part.LineSegment(App.Vector(-12, 53, 0), App.Vector(-15, 53, 0)), False)
sketch7.addGeometry(Part.LineSegment(App.Vector(-15, 53, 0), App.Vector(-15, 51.5, 0)), False)
sketch7.addGeometry(Part.LineSegment(App.Vector(-15, 51.5, 0), App.Vector(-20, 51.5, 0)), False)
sketch7.addGeometry(Part.LineSegment(App.Vector(-20, 51.5, 0), App.Vector(-20, 48.5, 0)), False)
sketch7.addGeometry(Part.LineSegment(App.Vector(15, -48.5, 0), App.Vector(15, -47, 0)), False)
sketch7.addGeometry(Part.LineSegment(App.Vector(15, -47, 0), App.Vector(12, -47, 0)), False)
sketch7.addGeometry(Part.LineSegment(App.Vector(12, -47, 0), App.Vector(12, -48.5, 0)), False)
sketch7.addGeometry(Part.LineSegment(App.Vector(12, -48.5, 0), App.Vector(8, -48.5, 0)), False)
sketch7.addGeometry(Part.LineSegment(App.Vector(8, -48.5, 0), App.Vector(8, -51.5, 0)), False)
sketch7.addGeometry(Part.LineSegment(App.Vector(8, -51.5, 0), App.Vector(12, -51.5, 0)), False)
sketch7.addGeometry(Part.LineSegment(App.Vector(12, -51.5, 0), App.Vector(12, -53, 0)), False)
sketch7.addGeometry(Part.LineSegment(App.Vector(12, -53, 0), App.Vector(15, -53, 0)), False)
sketch7.addGeometry(Part.LineSegment(App.Vector(15, -53, 0), App.Vector(15, -51.5, 0)), False)
sketch7.addGeometry(Part.LineSegment(App.Vector(15, -51.5, 0), App.Vector(20, -51.5, 0)), False)
sketch7.addGeometry(Part.LineSegment(App.Vector(20, -51.5, 0), App.Vector(20, -48.5, 0)), False)
sketch7.addGeometry(Part.LineSegment(App.Vector(20, -48.5, 0), App.Vector(15, -48.5, 0)), False)
sketch7.addGeometry(Part.LineSegment(App.Vector(15, 48.5, 0), App.Vector(20, 48.5, 0)), False)
sketch7.addGeometry(Part.LineSegment(App.Vector(20, 48.5, 0), App.Vector(20, 51.5, 0)), False)
sketch7.addGeometry(Part.LineSegment(App.Vector(20, 51.5, 0), App.Vector(15, 51.5, 0)), False)
sketch7.addGeometry(Part.LineSegment(App.Vector(15, 51.5, 0), App.Vector(15, 53, 0)), False)
sketch7.addGeometry(Part.LineSegment(App.Vector(15, 53, 0), App.Vector(12, 53, 0)), False)
sketch7.addGeometry(Part.LineSegment(App.Vector(12, 53, 0), App.Vector(12, 51.5, 0)), False)
sketch7.addGeometry(Part.LineSegment(App.Vector(12, 51.5, 0), App.Vector(8, 51.5, 0)), False)
sketch7.addGeometry(Part.LineSegment(App.Vector(8, 51.5, 0), App.Vector(8, 48.5, 0)), False)
sketch7.addGeometry(Part.LineSegment(App.Vector(8, 48.5, 0), App.Vector(12, 48.5, 0)), False)
sketch7.addGeometry(Part.LineSegment(App.Vector(12, 48.5, 0), App.Vector(12, 47, 0)), False)
sketch7.addGeometry(Part.LineSegment(App.Vector(12, 47, 0), App.Vector(15, 47, 0)), False)
sketch7.addGeometry(Part.LineSegment(App.Vector(15, 47, 0), App.Vector(15, 48.5, 0)), False)
sketch7.addConstraint(Sketcher.Constraint("Coincident", 0, 2, 1, 1))
sketch7.addConstraint(Sketcher.Constraint("Coincident", 1, 2, 2, 1))
sketch7.addConstraint(Sketcher.Constraint("Coincident", 2, 2, 3, 1))
sketch7.addConstraint(Sketcher.Constraint("Coincident", 3, 2, 4, 1))
sketch7.addConstraint(Sketcher.Constraint("Coincident", 4, 2, 5, 1))
sketch7.addConstraint(Sketcher.Constraint("Coincident", 5, 2, 6, 1))
sketch7.addConstraint(Sketcher.Constraint("Coincident", 6, 2, 7, 1))
sketch7.addConstraint(Sketcher.Constraint("Coincident", 7, 2, 8, 1))
sketch7.addConstraint(Sketcher.Constraint("Coincident", 8, 2, 9, 1))
sketch7.addConstraint(Sketcher.Constraint("Coincident", 9, 2, 10, 1))
sketch7.addConstraint(Sketcher.Constraint("Coincident", 10, 2, 11, 1))
sketch7.addConstraint(Sketcher.Constraint("Coincident", 11, 2, 0, 1))
sketch7.addConstraint(Sketcher.Constraint("Coincident", 12, 2, 13, 1))
sketch7.addConstraint(Sketcher.Constraint("Coincident", 13, 2, 14, 1))
sketch7.addConstraint(Sketcher.Constraint("Coincident", 14, 2, 15, 1))
sketch7.addConstraint(Sketcher.Constraint("Coincident", 15, 2, 16, 1))
sketch7.addConstraint(Sketcher.Constraint("Coincident", 16, 2, 17, 1))
sketch7.addConstraint(Sketcher.Constraint("Coincident", 17, 2, 18, 1))
sketch7.addConstraint(Sketcher.Constraint("Coincident", 18, 2, 19, 1))
sketch7.addConstraint(Sketcher.Constraint("Coincident", 19, 2, 20, 1))
sketch7.addConstraint(Sketcher.Constraint("Coincident", 20, 2, 21, 1))
sketch7.addConstraint(Sketcher.Constraint("Coincident", 21, 2, 22, 1))
sketch7.addConstraint(Sketcher.Constraint("Coincident", 22, 2, 23, 1))
sketch7.addConstraint(Sketcher.Constraint("Coincident", 23, 2, 12, 1))
sketch7.addConstraint(Sketcher.Constraint("Coincident", 24, 2, 25, 1))
sketch7.addConstraint(Sketcher.Constraint("Coincident", 25, 2, 26, 1))
sketch7.addConstraint(Sketcher.Constraint("Coincident", 26, 2, 27, 1))
sketch7.addConstraint(Sketcher.Constraint("Coincident", 27, 2, 28, 1))
sketch7.addConstraint(Sketcher.Constraint("Coincident", 28, 2, 29, 1))
sketch7.addConstraint(Sketcher.Constraint("Coincident", 29, 2, 30, 1))
sketch7.addConstraint(Sketcher.Constraint("Coincident", 30, 2, 31, 1))
sketch7.addConstraint(Sketcher.Constraint("Coincident", 31, 2, 32, 1))
sketch7.addConstraint(Sketcher.Constraint("Coincident", 32, 2, 33, 1))
sketch7.addConstraint(Sketcher.Constraint("Coincident", 33, 2, 34, 1))
sketch7.addConstraint(Sketcher.Constraint("Coincident", 34, 2, 35, 1))
sketch7.addConstraint(Sketcher.Constraint("Coincident", 35, 2, 24, 1))
sketch7.addConstraint(Sketcher.Constraint("Coincident", 36, 2, 37, 1))
sketch7.addConstraint(Sketcher.Constraint("Coincident", 37, 2, 38, 1))
sketch7.addConstraint(Sketcher.Constraint("Coincident", 38, 2, 39, 1))
sketch7.addConstraint(Sketcher.Constraint("Coincident", 39, 2, 40, 1))
sketch7.addConstraint(Sketcher.Constraint("Coincident", 40, 2, 41, 1))
sketch7.addConstraint(Sketcher.Constraint("Coincident", 41, 2, 42, 1))
sketch7.addConstraint(Sketcher.Constraint("Coincident", 42, 2, 43, 1))
sketch7.addConstraint(Sketcher.Constraint("Coincident", 43, 2, 44, 1))
sketch7.addConstraint(Sketcher.Constraint("Coincident", 44, 2, 45, 1))
sketch7.addConstraint(Sketcher.Constraint("Coincident", 45, 2, 46, 1))
sketch7.addConstraint(Sketcher.Constraint("Coincident", 46, 2, 47, 1))
sketch7.addConstraint(Sketcher.Constraint("Coincident", 47, 2, 36, 1))
sketch7.addConstraint(Sketcher.Constraint("Vertical", 0))
sketch7.addConstraint(Sketcher.Constraint("Horizontal", 1))
sketch7.addConstraint(Sketcher.Constraint("Vertical", 2))
sketch7.addConstraint(Sketcher.Constraint("Horizontal", 3))
sketch7.addConstraint(Sketcher.Constraint("Vertical", 4))
sketch7.addConstraint(Sketcher.Constraint("Horizontal", 5))
sketch7.addConstraint(Sketcher.Constraint("Vertical", 6))
sketch7.addConstraint(Sketcher.Constraint("Horizontal", 7))
sketch7.addConstraint(Sketcher.Constraint("Vertical", 8))
sketch7.addConstraint(Sketcher.Constraint("Horizontal", 9))
sketch7.addConstraint(Sketcher.Constraint("Vertical", 10))
sketch7.addConstraint(Sketcher.Constraint("Horizontal", 11))
sketch7.addConstraint(Sketcher.Constraint("Horizontal", 12))
sketch7.addConstraint(Sketcher.Constraint("Vertical", 13))
sketch7.addConstraint(Sketcher.Constraint("Horizontal", 14))
sketch7.addConstraint(Sketcher.Constraint("Vertical", 15))
sketch7.addConstraint(Sketcher.Constraint("Horizontal", 16))
sketch7.addConstraint(Sketcher.Constraint("Vertical", 17))
sketch7.addConstraint(Sketcher.Constraint("Horizontal", 18))
sketch7.addConstraint(Sketcher.Constraint("Vertical", 19))
sketch7.addConstraint(Sketcher.Constraint("Horizontal", 20))
sketch7.addConstraint(Sketcher.Constraint("Vertical", 21))
sketch7.addConstraint(Sketcher.Constraint("Horizontal", 22))
sketch7.addConstraint(Sketcher.Constraint("Vertical", 23))
sketch7.addConstraint(Sketcher.Constraint("Vertical", 24))
sketch7.addConstraint(Sketcher.Constraint("Horizontal", 25))
sketch7.addConstraint(Sketcher.Constraint("Vertical", 26))
sketch7.addConstraint(Sketcher.Constraint("Horizontal", 27))
sketch7.addConstraint(Sketcher.Constraint("Vertical", 28))
sketch7.addConstraint(Sketcher.Constraint("Horizontal", 29))
sketch7.addConstraint(Sketcher.Constraint("Vertical", 30))
sketch7.addConstraint(Sketcher.Constraint("Horizontal", 31))
sketch7.addConstraint(Sketcher.Constraint("Vertical", 32))
sketch7.addConstraint(Sketcher.Constraint("Horizontal", 33))
sketch7.addConstraint(Sketcher.Constraint("Vertical", 34))
sketch7.addConstraint(Sketcher.Constraint("Horizontal", 35))
sketch7.addConstraint(Sketcher.Constraint("Horizontal", 36))
sketch7.addConstraint(Sketcher.Constraint("Vertical", 37))
sketch7.addConstraint(Sketcher.Constraint("Horizontal", 38))
sketch7.addConstraint(Sketcher.Constraint("Vertical", 39))
sketch7.addConstraint(Sketcher.Constraint("Horizontal", 40))
sketch7.addConstraint(Sketcher.Constraint("Vertical", 41))
sketch7.addConstraint(Sketcher.Constraint("Horizontal", 42))
sketch7.addConstraint(Sketcher.Constraint("Vertical", 43))
sketch7.addConstraint(Sketcher.Constraint("Horizontal", 44))
sketch7.addConstraint(Sketcher.Constraint("Vertical", 45))
sketch7.addConstraint(Sketcher.Constraint("Horizontal", 46))
sketch7.addConstraint(Sketcher.Constraint("Vertical", 47))
sketch7.addConstraint(Sketcher.Constraint("Symmetric", 13, 2, 24, 2, -1, 1))
sketch7.addConstraint(Sketcher.Constraint("Symmetric", 15, 2, 26, 2, -1, 1))
sketch7.addConstraint(Sketcher.Constraint("Symmetric", 17, 2, 28, 2, -1, 1))
sketch7.addConstraint(Sketcher.Constraint("Symmetric", 19, 2, 30, 2, -1, 1))
sketch7.addConstraint(Sketcher.Constraint("Symmetric", 21, 2, 32, 2, -1, 1))
sketch7.addConstraint(Sketcher.Constraint("Symmetric", 23, 2, 34, 2, -1, 1))
sketch7.addConstraint(Sketcher.Constraint("Symmetric", 1, 2, 36, 2, -1, 1))
sketch7.addConstraint(Sketcher.Constraint("Symmetric", 3, 2, 38, 2, -1, 1))
sketch7.addConstraint(Sketcher.Constraint("Symmetric", 5, 2, 40, 2, -1, 1))
sketch7.addConstraint(Sketcher.Constraint("Symmetric", 7, 2, 42, 2, -1, 1))
sketch7.addConstraint(Sketcher.Constraint("Symmetric", 9, 2, 44, 2, -1, 1))
sketch7.addConstraint(Sketcher.Constraint("Symmetric", 11, 2, 46, 2, -1, 1))
sketch7.addConstraint(Sketcher.Constraint("Symmetric", 11, 2, 24, 2, -2))
sketch7.addConstraint(Sketcher.Constraint("Symmetric", 9, 2, 26, 2, -2))
sketch7.addConstraint(Sketcher.Constraint("Symmetric", 7, 2, 28, 2, -2))
sketch7.addConstraint(Sketcher.Constraint("Symmetric", 5, 2, 30, 2, -2))
sketch7.addConstraint(Sketcher.Constraint("Symmetric", 3, 2, 32, 2, -2))
sketch7.addConstraint(Sketcher.Constraint("Symmetric", 1, 2, 34, 2, -2))
sketch7.addConstraint(Sketcher.Constraint("Horizontal", 3, 2, 6, 2))
sketch7.addConstraint(Sketcher.Constraint("Horizontal", 1, 2, 8, 2))
sketch7.addConstraint(Sketcher.Constraint("Vertical", 0, 2, 3, 2))
sketch7.addConstraint(Sketcher.Constraint("Vertical", 6, 2, 9, 2))
sketch7.addConstraint(Sketcher.Constraint("Equal", 46, 2))
sketch7.addConstraint(Sketcher.Constraint("Equal", 0, 4))
sketch7.addConstraint(Sketcher.Constraint("DistanceX", 1, 2, 1, 1, Q("5 mm")))
sketch7.addConstraint(Sketcher.Constraint("DistanceX", 5, 1, 5, 2, Q("3 mm")))
sketch7.addConstraint(Sketcher.Constraint("DistanceX", 7, 1, 7, 2, Q("4 mm")))
sketch7.addConstraint(Sketcher.Constraint("DistanceY", 0, 2, 0, 1, Q("1.5 mm")))
sketch7.addConstraint(Sketcher.Constraint("DistanceX", 0, 2, -1, 1, Q("15 mm")))
sketch7.addConstraint(Sketcher.Constraint("DistanceY", 4, 2, -1, 1, Q("53 mm")))
pocket5 = doc.addObject("PartDesign::Pocket", "Pocket004")
body.addObject(pocket5)
pocket5.Profile = sketch7
pocket5.Length = 5

doc.recompute()
